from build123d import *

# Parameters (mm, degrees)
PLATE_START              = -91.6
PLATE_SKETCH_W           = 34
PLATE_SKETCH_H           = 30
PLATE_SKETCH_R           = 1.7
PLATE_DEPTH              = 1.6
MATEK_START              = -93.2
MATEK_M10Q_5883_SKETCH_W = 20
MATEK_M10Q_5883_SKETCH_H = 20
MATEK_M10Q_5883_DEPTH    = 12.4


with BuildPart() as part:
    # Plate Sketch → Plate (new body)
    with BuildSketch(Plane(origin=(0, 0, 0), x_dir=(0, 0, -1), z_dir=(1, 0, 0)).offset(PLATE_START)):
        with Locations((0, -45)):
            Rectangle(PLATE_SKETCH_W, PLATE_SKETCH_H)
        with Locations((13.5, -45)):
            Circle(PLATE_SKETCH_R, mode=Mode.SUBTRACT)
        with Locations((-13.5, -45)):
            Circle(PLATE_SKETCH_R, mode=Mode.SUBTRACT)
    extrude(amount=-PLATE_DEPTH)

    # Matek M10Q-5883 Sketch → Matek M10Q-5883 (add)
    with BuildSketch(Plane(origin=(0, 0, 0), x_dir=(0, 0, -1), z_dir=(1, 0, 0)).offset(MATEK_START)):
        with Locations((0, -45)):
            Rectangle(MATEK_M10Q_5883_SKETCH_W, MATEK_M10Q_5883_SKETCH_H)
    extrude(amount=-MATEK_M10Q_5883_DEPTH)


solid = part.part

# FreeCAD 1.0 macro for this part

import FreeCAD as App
import Part
import Sketcher
Q = App.Units.Quantity

doc = App.newDocument("Part")
body = doc.addObject("PartDesign::Body", "Body")

sketch1 = body.newObject("Sketcher::SketchObject", "Sketch")
sketch1.AttachmentSupport = (doc.getObject("YZ_Plane"), [""])
sketch1.MapMode = "FlatFace"
sketch1.AttachmentOffset = App.Placement(App.Vector(0, 0, -91.6), App.Rotation())
sketch1.addGeometry(Part.LineSegment(App.Vector(-30, 17, 0), App.Vector(-60, 17, 0)), False)
sketch1.addGeometry(Part.LineSegment(App.Vector(-60, 17, 0), App.Vector(-60, -17, 0)), False)
sketch1.addGeometry(Part.LineSegment(App.Vector(-60, -17, 0), App.Vector(-30, -17, 0)), False)
sketch1.addGeometry(Part.LineSegment(App.Vector(-30, -17, 0), App.Vector(-30, 17, 0)), False)
sketch1.addGeometry(Part.Circle(App.Vector(-45, 13.5, 0), App.Vector(0, 0, 1), 1.7), False)
sketch1.addGeometry(Part.Circle(App.Vector(-45, -13.5, 0), App.Vector(0, 0, 1), 1.7), False)
sketch1.addConstraint(Sketcher.Constraint("Coincident", 0, 2, 1, 1))
sketch1.addConstraint(Sketcher.Constraint("Coincident", 1, 2, 2, 1))
sketch1.addConstraint(Sketcher.Constraint("Coincident", 2, 2, 3, 1))
sketch1.addConstraint(Sketcher.Constraint("Coincident", 3, 2, 0, 1))
sketch1.addConstraint(Sketcher.Constraint("Horizontal", 0))
sketch1.addConstraint(Sketcher.Constraint("Vertical", 1))
sketch1.addConstraint(Sketcher.Constraint("Horizontal", 2))
sketch1.addConstraint(Sketcher.Constraint("Vertical", 3))
sketch1.addConstraint(Sketcher.Constraint("Equal", 4, 5))
sketch1.addConstraint(Sketcher.Constraint("Symmetric", 4, 3, 5, 3, -1))
sketch1.addConstraint(Sketcher.Constraint("Diameter", 4, Q("3.4 mm")))
sketch1.addConstraint(Sketcher.Constraint("DistanceX", 0, 2, 0, 1, Q("30 mm")))
sketch1.addConstraint(Sketcher.Constraint("DistanceY", 1, 2, 1, 1, Q("34 mm")))
sketch1.addConstraint(Sketcher.Constraint("DistanceX", 4, 3, -1, 1, Q("45 mm")))
sketch1.addConstraint(Sketcher.Constraint("DistanceX", 0, 2, -1, 1, Q("60 mm")))
sketch1.addConstraint(Sketcher.Constraint("DistanceY", -1, 1, 0, 2, Q("17 mm")))
sketch1.addConstraint(Sketcher.Constraint("DistanceY", 5, 3, 4, 3, Q("27 mm")))
pad1 = body.newObject("PartDesign::Pad", "Pad")
pad1.Profile = sketch1
pad1.Length = 1.6
pad1.Reversed = True

sketch2 = body.newObject("Sketcher::SketchObject", "Sketch001")
sketch2.AttachmentSupport = (doc.getObject("YZ_Plane"), [""])
sketch2.MapMode = "FlatFace"
sketch2.AttachmentOffset = App.Placement(App.Vector(0, 0, -93.2), App.Rotation())
sketch2.addGeometry(Part.LineSegment(App.Vector(-35, 10, 0), App.Vector(-55, 10, 0)), False)
sketch2.addGeometry(Part.LineSegment(App.Vector(-55, 10, 0), App.Vector(-55, -10, 0)), False)
sketch2.addGeometry(Part.LineSegment(App.Vector(-55, -10, 0), App.Vector(-35, -10, 0)), False)
sketch2.addGeometry(Part.LineSegment(App.Vector(-35, -10, 0), App.Vector(-35, 10, 0)), False)
sketch2.addConstraint(Sketcher.Constraint("Coincident", 0, 2, 1, 1))
sketch2.addConstraint(Sketcher.Constraint("Coincident", 1, 2, 2, 1))
sketch2.addConstraint(Sketcher.Constraint("Coincident", 2, 2, 3, 1))
sketch2.addConstraint(Sketcher.Constraint("Coincident", 3, 2, 0, 1))
sketch2.addConstraint(Sketcher.Constraint("Horizontal", 0))
sketch2.addConstraint(Sketcher.Constraint("Vertical", 1))
sketch2.addConstraint(Sketcher.Constraint("Horizontal", 2))
sketch2.addConstraint(Sketcher.Constraint("Vertical", 3))
sketch2.addConstraint(Sketcher.Constraint("Equal", 2, 1))
sketch2.addConstraint(Sketcher.Constraint("DistanceX", 0, 2, 0, 1, Q("20 mm")))
sketch2.addConstraint(Sketcher.Constraint("DistanceX", 0, 2, -1, 1, Q("55 mm")))
sketch2.addConstraint(Sketcher.Constraint("DistanceY", -1, 1, 0, 2, Q("10 mm")))
pad2 = body.newObject("PartDesign::Pad", "Pad001")
pad2.Profile = sketch2
pad2.Length = 12.4
pad2.Reversed = True

doc.recompute()
